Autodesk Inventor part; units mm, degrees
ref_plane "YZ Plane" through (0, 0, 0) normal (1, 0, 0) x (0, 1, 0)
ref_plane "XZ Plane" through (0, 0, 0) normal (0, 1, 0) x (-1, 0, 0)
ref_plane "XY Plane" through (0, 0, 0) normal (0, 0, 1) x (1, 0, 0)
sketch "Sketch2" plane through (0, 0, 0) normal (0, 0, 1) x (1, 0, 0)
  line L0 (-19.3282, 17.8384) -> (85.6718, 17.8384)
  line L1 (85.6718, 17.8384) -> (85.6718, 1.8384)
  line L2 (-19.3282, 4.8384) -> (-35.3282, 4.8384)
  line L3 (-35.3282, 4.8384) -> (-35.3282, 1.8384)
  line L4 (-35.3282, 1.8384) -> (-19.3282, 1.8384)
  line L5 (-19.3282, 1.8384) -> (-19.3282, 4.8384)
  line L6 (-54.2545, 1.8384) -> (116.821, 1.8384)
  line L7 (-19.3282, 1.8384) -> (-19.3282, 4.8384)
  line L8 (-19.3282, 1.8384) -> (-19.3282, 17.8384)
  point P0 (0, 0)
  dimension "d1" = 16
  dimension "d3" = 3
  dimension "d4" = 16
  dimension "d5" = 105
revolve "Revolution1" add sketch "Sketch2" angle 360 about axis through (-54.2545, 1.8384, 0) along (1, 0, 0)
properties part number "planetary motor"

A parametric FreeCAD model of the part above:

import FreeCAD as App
import Part
import Sketcher
from FreeCAD import Vector

doc = App.newDocument("Part")
params = doc.addObject("Spreadsheet::Sheet", "Params")
for row, (alias, value) in enumerate([
    ("sketch1_width", "105 mm"),
    ("sketch1_width2", "16 mm"),
    ("sketch1_height", "3 mm"),
    ("revolution_angle", "360 deg"),
], start=1):
    params.set(f"A{row}", alias)
    params.set(f"B{row}", "=" + value)
    params.setAlias(f"B{row}", alias)

body = doc.addObject("PartDesign::Body", "Body")

sketch1 = body.newObject("Sketcher::SketchObject", "Sketch")
sketch1.AttachmentSupport = (doc.getObject("XY_Plane"), [""])
sketch1.MapMode = "FlatFace"
sketch1.addGeometry([
    Part.LineSegment(Vector(85.7, 17.8, 0), Vector(-19.3, 17.8, 0)),
    Part.LineSegment(Vector(-19.3, 17.8, 0), Vector(-19.3, 4.8, 0)),
    Part.LineSegment(Vector(-19.3, 4.8, 0), Vector(-35.3, 4.8, 0)),
    Part.LineSegment(Vector(-35.3, 4.8, 0), Vector(-35.3, 1.8, 0)),
    Part.LineSegment(Vector(-35.3, 1.8, 0), Vector(85.7, 1.8, 0)),
    Part.LineSegment(Vector(85.7, 1.8, 0), Vector(85.7, 17.8, 0)),
], False)
sketch1.addGeometry(Part.LineSegment(Vector(-35.3, 1.8, 0), Vector(85.7, 1.8, 0)), True)
sketch1.addConstraint([
    Sketcher.Constraint("Coincident", 0, 2, 1, 1),
    Sketcher.Constraint("Coincident", 1, 2, 2, 1),
    Sketcher.Constraint("Coincident", 2, 2, 3, 1),
    Sketcher.Constraint("Coincident", 3, 2, 4, 1),
    Sketcher.Constraint("Coincident", 4, 2, 5, 1),
    Sketcher.Constraint("Coincident", 5, 2, 0, 1),
    Sketcher.Constraint("Horizontal", 0),
    Sketcher.Constraint("Vertical", 1),
    Sketcher.Constraint("Horizontal", 2),
    Sketcher.Constraint("Vertical", 3),
    Sketcher.Constraint("Horizontal", 4),
    Sketcher.Constraint("Vertical", 5),
    Sketcher.Constraint("Horizontal", 6),
    Sketcher.Constraint("Coincident", 6, 1, 3, 2),
    Sketcher.Constraint("Vertical", 5, 2, 6, 2),
    Sketcher.Constraint("Equal", 2, 5),
    Sketcher.Constraint("DistanceX", 0, 2, 0, 1, 105.0),
    Sketcher.Constraint("DistanceX", 2, 2, 2, 1, 16.0),
    Sketcher.Constraint("DistanceY", 3, 2, 3, 1, 3.0),
    Sketcher.Constraint("DistanceX", 0, 2, -1, 1, 19.3282),
    Sketcher.Constraint("DistanceY", -1, 1, 0, 2, 17.8384),
])
sketch1.setExpression("Constraints[16]", "Params.sketch1_width")
sketch1.setExpression("Constraints[17]", "Params.sketch1_width2")
sketch1.setExpression("Constraints[18]", "Params.sketch1_height")
revolution = body.newObject("PartDesign::Revolution", "Revolution")
revolution.Profile = sketch1
revolution.ReferenceAxis = (sketch1, ["Axis0"])
revolution.setExpression("Angle", "Params.revolution_angle")

doc.recompute()
